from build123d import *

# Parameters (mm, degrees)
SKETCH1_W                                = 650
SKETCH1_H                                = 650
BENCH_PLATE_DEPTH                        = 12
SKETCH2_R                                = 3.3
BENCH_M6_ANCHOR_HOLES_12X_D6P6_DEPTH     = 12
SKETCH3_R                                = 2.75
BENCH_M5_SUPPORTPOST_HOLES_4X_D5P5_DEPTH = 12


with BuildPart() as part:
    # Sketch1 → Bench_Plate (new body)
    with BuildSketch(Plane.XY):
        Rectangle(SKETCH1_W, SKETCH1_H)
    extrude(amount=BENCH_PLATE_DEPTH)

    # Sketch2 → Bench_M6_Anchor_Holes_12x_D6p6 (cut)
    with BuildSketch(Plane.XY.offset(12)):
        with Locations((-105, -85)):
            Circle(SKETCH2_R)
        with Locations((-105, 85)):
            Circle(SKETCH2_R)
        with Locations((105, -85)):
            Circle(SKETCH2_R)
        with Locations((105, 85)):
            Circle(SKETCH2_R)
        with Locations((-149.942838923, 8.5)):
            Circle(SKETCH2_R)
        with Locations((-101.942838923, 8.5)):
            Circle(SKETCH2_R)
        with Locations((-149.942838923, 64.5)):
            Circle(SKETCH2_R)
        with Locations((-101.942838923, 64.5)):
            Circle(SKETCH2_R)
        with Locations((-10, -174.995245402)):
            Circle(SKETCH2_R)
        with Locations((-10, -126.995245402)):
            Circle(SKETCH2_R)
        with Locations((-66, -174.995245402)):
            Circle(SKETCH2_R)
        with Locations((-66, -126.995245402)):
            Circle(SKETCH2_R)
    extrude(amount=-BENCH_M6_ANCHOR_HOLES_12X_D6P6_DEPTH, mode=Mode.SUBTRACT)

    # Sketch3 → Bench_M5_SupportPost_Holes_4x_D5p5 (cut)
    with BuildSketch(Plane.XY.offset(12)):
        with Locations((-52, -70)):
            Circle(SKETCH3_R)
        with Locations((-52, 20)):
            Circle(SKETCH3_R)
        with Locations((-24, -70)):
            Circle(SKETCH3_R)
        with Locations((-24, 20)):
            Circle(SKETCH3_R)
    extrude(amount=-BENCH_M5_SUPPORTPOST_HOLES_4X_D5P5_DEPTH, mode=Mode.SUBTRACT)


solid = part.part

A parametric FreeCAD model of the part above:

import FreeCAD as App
import Part
import Sketcher
from FreeCAD import Vector
Q = App.Units.Quantity

doc = App.newDocument("Part")
body = doc.addObject("PartDesign::Body", "Body")

sketch1 = doc.addObject("Sketcher::SketchObject", "Sketch")
body.addObject(sketch1)
sketch1.AttachmentSupport = (doc.XY_Plane, [""])
sketch1.MapMode = "FlatFace"
sketch1.addGeometry(Part.LineSegment(Vector(-325, 325, 0), Vector(-325, -325, 0)), False)
sketch1.addGeometry(Part.LineSegment(Vector(-325, -325, 0), Vector(325, -325, 0)), False)
sketch1.addGeometry(Part.LineSegment(Vector(325, -325, 0), Vector(325, 325, 0)), False)
sketch1.addGeometry(Part.LineSegment(Vector(325, 325, 0), Vector(-325, 325, 0)), False)
sketch1.addConstraint(Sketcher.Constraint("Coincident", 0, 2, 1, 1))
sketch1.addConstraint(Sketcher.Constraint("Coincident", 1, 2, 2, 1))
sketch1.addConstraint(Sketcher.Constraint("Coincident", 2, 2, 3, 1))
sketch1.addConstraint(Sketcher.Constraint("Coincident", 3, 2, 0, 1))
sketch1.addConstraint(Sketcher.Constraint("Vertical", 0))
sketch1.addConstraint(Sketcher.Constraint("Horizontal", 1))
sketch1.addConstraint(Sketcher.Constraint("Vertical", 2))
sketch1.addConstraint(Sketcher.Constraint("Horizontal", 3))
sketch1.addConstraint(Sketcher.Constraint("Symmetric", 0, 2, 2, 2, -1, 1))
sketch1.addConstraint(Sketcher.Constraint("Equal", 3, 0))
sketch1.addConstraint(Sketcher.Constraint("DistanceX", 1, 1, 1, 2, Q("650 mm")))
pad1 = doc.addObject("PartDesign::Pad", "Pad")
body.addObject(pad1)
pad1.Profile = sketch1
pad1.Length = 12

sketch2 = doc.addObject("Sketcher::SketchObject", "Sketch001")
body.addObject(sketch2)
sketch2.AttachmentSupport = (doc.XY_Plane, [""])
sketch2.MapMode = "FlatFace"
sketch2.AttachmentOffset = App.Placement(Vector(0, 0, 12), App.Rotation())
sketch2.addGeometry(Part.Circle(Vector(-105, -85, 0), Vector(0, 0, 1), 3.3), False)
sketch2.addGeometry(Part.Circle(Vector(-105, 85, 0), Vector(0, 0, 1), 3.3), False)
sketch2.addGeometry(Part.Circle(Vector(105, -85, 0), Vector(0, 0, 1), 3.3), False)
sketch2.addGeometry(Part.Circle(Vector(105, 85, 0), Vector(0, 0, 1), 3.3), False)
sketch2.addGeometry(Part.Circle(Vector(-149.942839, 8.5, 0), Vector(0, 0, 1), 3.3), False)
sketch2.addGeometry(Part.Circle(Vector(-101.942839, 8.5, 0), Vector(0, 0, 1), 3.3), False)
sketch2.addGeometry(Part.Circle(Vector(-149.942839, 64.5, 0), Vector(0, 0, 1), 3.3), False)
sketch2.addGeometry(Part.Circle(Vector(-101.942839, 64.5, 0), Vector(0, 0, 1), 3.3), False)
sketch2.addGeometry(Part.Circle(Vector(-10, -174.995245, 0), Vector(0, 0, 1), 3.3), False)
sketch2.addGeometry(Part.Circle(Vector(-10, -126.995245, 0), Vector(0, 0, 1), 3.3), False)
sketch2.addGeometry(Part.Circle(Vector(-66, -174.995245, 0), Vector(0, 0, 1), 3.3), False)
sketch2.addGeometry(Part.Circle(Vector(-66, -126.995245, 0), Vector(0, 0, 1), 3.3), False)
sketch2.addConstraint(Sketcher.Constraint("Equal", 0, 1))
sketch2.addConstraint(Sketcher.Constraint("Equal", 1, 2))
sketch2.addConstraint(Sketcher.Constraint("Equal", 2, 3))
sketch2.addConstraint(Sketcher.Constraint("Equal", 3, 4))
sketch2.addConstraint(Sketcher.Constraint("Equal", 4, 5))
sketch2.addConstraint(Sketcher.Constraint("Equal", 5, 6))
sketch2.addConstraint(Sketcher.Constraint("Equal", 6, 7))
sketch2.addConstraint(Sketcher.Constraint("Equal", 7, 8))
sketch2.addConstraint(Sketcher.Constraint("Equal", 8, 9))
sketch2.addConstraint(Sketcher.Constraint("Equal", 9, 10))
sketch2.addConstraint(Sketcher.Constraint("Equal", 10, 11))
sketch2.addConstraint(Sketcher.Constraint("Symmetric", 1, 3, 2, 3, -1, 1))
sketch2.addConstraint(Sketcher.Constraint("Symmetric", 0, 3, 3, 3, -1, 1))
sketch2.addConstraint(Sketcher.Constraint("Symmetric", 0, 3, 2, 3, -2))
sketch2.addConstraint(Sketcher.Constraint("Horizontal", 4, 3, 5, 3))
sketch2.addConstraint(Sketcher.Constraint("Horizontal", 6, 3, 7, 3))
sketch2.addConstraint(Sketcher.Constraint("Horizontal", 8, 3, 10, 3))
sketch2.addConstraint(Sketcher.Constraint("Horizontal", 9, 3, 11, 3))
sketch2.addConstraint(Sketcher.Constraint("Vertical", 4, 3, 6, 3))
sketch2.addConstraint(Sketcher.Constraint("Vertical", 5, 3, 7, 3))
sketch2.addConstraint(Sketcher.Constraint("Vertical", 8, 3, 9, 3))
sketch2.addConstraint(Sketcher.Constraint("Vertical", 10, 3, 11, 3))
sketch2.addConstraint(Sketcher.Constraint("Diameter", 0, Q("6.6 mm")))
sketch2.addConstraint(Sketcher.Constraint("DistanceX", 0, 3, -1, 1, Q("105 mm")))
sketch2.addConstraint(Sketcher.Constraint("DistanceY", 0, 3, -1, 1, Q("85 mm")))
sketch2.addConstraint(Sketcher.Constraint("DistanceX", 8, 3, -1, 1, Q("10 mm")))
sketch2.addConstraint(Sketcher.Constraint("DistanceX", 10, 3, -1, 1, Q("66 mm")))
sketch2.addConstraint(Sketcher.Constraint("DistanceX", 4, 3, 5, 3, Q("48 mm")))
sketch2.addConstraint(Sketcher.Constraint("DistanceY", 4, 3, 6, 3, Q("56 mm")))
sketch2.addConstraint(Sketcher.Constraint("DistanceY", 8, 3, 9, 3, Q("48 mm")))
sketch2.addConstraint(Sketcher.Constraint("DistanceY", -1, 1, 4, 3, Q("8.5 mm")))
sketch2.addConstraint(Sketcher.Constraint("DistanceX", 4, 3, -1, 1, Q("149.942839 mm")))
sketch2.addConstraint(Sketcher.Constraint("DistanceY", 8, 3, -1, 1, Q("174.995245 mm")))
pocket1 = doc.addObject("PartDesign::Pocket", "Pocket")
body.addObject(pocket1)
pocket1.Profile = sketch2
pocket1.Length = 12

sketch3 = doc.addObject("Sketcher::SketchObject", "Sketch002")
body.addObject(sketch3)
sketch3.AttachmentSupport = (doc.XY_Plane, [""])
sketch3.MapMode = "FlatFace"
sketch3.AttachmentOffset = App.Placement(Vector(0, 0, 12), App.Rotation())
sketch3.addGeometry(Part.Circle(Vector(-52, -70, 0), Vector(0, 0, 1), 2.75), False)
sketch3.addGeometry(Part.Circle(Vector(-52, 20, 0), Vector(0, 0, 1), 2.75), False)
sketch3.addGeometry(Part.Circle(Vector(-24, -70, 0), Vector(0, 0, 1), 2.75), False)
sketch3.addGeometry(Part.Circle(Vector(-24, 20, 0), Vector(0, 0, 1), 2.75), False)
sketch3.addConstraint(Sketcher.Constraint("Equal", 0, 1))
sketch3.addConstraint(Sketcher.Constraint("Equal", 1, 2))
sketch3.addConstraint(Sketcher.Constraint("Equal", 2, 3))
sketch3.addConstraint(Sketcher.Constraint("Horizontal", 0, 3, 2, 3))
sketch3.addConstraint(Sketcher.Constraint("Horizontal", 1, 3, 3, 3))
sketch3.addConstraint(Sketcher.Constraint("Vertical", 0, 3, 1, 3))
sketch3.addConstraint(Sketcher.Constraint("Vertical", 2, 3, 3, 3))
sketch3.addConstraint(Sketcher.Constraint("Diameter", 0, Q("5.5 mm")))
sketch3.addConstraint(Sketcher.Constraint("DistanceX", 0, 3, -1, 1, Q("52 mm")))
sketch3.addConstraint(Sketcher.Constraint("DistanceY", 0, 3, -1, 1, Q("70 mm")))
sketch3.addConstraint(Sketcher.Constraint("DistanceY", -1, 1, 1, 3, Q("20 mm")))
sketch3.addConstraint(Sketcher.Constraint("DistanceX", 2, 3, -1, 1, Q("24 mm")))
pocket2 = doc.addObject("PartDesign::Pocket", "Pocket001")
body.addObject(pocket2)
pocket2.Profile = sketch3
pocket2.Length = 12

doc.recompute()
